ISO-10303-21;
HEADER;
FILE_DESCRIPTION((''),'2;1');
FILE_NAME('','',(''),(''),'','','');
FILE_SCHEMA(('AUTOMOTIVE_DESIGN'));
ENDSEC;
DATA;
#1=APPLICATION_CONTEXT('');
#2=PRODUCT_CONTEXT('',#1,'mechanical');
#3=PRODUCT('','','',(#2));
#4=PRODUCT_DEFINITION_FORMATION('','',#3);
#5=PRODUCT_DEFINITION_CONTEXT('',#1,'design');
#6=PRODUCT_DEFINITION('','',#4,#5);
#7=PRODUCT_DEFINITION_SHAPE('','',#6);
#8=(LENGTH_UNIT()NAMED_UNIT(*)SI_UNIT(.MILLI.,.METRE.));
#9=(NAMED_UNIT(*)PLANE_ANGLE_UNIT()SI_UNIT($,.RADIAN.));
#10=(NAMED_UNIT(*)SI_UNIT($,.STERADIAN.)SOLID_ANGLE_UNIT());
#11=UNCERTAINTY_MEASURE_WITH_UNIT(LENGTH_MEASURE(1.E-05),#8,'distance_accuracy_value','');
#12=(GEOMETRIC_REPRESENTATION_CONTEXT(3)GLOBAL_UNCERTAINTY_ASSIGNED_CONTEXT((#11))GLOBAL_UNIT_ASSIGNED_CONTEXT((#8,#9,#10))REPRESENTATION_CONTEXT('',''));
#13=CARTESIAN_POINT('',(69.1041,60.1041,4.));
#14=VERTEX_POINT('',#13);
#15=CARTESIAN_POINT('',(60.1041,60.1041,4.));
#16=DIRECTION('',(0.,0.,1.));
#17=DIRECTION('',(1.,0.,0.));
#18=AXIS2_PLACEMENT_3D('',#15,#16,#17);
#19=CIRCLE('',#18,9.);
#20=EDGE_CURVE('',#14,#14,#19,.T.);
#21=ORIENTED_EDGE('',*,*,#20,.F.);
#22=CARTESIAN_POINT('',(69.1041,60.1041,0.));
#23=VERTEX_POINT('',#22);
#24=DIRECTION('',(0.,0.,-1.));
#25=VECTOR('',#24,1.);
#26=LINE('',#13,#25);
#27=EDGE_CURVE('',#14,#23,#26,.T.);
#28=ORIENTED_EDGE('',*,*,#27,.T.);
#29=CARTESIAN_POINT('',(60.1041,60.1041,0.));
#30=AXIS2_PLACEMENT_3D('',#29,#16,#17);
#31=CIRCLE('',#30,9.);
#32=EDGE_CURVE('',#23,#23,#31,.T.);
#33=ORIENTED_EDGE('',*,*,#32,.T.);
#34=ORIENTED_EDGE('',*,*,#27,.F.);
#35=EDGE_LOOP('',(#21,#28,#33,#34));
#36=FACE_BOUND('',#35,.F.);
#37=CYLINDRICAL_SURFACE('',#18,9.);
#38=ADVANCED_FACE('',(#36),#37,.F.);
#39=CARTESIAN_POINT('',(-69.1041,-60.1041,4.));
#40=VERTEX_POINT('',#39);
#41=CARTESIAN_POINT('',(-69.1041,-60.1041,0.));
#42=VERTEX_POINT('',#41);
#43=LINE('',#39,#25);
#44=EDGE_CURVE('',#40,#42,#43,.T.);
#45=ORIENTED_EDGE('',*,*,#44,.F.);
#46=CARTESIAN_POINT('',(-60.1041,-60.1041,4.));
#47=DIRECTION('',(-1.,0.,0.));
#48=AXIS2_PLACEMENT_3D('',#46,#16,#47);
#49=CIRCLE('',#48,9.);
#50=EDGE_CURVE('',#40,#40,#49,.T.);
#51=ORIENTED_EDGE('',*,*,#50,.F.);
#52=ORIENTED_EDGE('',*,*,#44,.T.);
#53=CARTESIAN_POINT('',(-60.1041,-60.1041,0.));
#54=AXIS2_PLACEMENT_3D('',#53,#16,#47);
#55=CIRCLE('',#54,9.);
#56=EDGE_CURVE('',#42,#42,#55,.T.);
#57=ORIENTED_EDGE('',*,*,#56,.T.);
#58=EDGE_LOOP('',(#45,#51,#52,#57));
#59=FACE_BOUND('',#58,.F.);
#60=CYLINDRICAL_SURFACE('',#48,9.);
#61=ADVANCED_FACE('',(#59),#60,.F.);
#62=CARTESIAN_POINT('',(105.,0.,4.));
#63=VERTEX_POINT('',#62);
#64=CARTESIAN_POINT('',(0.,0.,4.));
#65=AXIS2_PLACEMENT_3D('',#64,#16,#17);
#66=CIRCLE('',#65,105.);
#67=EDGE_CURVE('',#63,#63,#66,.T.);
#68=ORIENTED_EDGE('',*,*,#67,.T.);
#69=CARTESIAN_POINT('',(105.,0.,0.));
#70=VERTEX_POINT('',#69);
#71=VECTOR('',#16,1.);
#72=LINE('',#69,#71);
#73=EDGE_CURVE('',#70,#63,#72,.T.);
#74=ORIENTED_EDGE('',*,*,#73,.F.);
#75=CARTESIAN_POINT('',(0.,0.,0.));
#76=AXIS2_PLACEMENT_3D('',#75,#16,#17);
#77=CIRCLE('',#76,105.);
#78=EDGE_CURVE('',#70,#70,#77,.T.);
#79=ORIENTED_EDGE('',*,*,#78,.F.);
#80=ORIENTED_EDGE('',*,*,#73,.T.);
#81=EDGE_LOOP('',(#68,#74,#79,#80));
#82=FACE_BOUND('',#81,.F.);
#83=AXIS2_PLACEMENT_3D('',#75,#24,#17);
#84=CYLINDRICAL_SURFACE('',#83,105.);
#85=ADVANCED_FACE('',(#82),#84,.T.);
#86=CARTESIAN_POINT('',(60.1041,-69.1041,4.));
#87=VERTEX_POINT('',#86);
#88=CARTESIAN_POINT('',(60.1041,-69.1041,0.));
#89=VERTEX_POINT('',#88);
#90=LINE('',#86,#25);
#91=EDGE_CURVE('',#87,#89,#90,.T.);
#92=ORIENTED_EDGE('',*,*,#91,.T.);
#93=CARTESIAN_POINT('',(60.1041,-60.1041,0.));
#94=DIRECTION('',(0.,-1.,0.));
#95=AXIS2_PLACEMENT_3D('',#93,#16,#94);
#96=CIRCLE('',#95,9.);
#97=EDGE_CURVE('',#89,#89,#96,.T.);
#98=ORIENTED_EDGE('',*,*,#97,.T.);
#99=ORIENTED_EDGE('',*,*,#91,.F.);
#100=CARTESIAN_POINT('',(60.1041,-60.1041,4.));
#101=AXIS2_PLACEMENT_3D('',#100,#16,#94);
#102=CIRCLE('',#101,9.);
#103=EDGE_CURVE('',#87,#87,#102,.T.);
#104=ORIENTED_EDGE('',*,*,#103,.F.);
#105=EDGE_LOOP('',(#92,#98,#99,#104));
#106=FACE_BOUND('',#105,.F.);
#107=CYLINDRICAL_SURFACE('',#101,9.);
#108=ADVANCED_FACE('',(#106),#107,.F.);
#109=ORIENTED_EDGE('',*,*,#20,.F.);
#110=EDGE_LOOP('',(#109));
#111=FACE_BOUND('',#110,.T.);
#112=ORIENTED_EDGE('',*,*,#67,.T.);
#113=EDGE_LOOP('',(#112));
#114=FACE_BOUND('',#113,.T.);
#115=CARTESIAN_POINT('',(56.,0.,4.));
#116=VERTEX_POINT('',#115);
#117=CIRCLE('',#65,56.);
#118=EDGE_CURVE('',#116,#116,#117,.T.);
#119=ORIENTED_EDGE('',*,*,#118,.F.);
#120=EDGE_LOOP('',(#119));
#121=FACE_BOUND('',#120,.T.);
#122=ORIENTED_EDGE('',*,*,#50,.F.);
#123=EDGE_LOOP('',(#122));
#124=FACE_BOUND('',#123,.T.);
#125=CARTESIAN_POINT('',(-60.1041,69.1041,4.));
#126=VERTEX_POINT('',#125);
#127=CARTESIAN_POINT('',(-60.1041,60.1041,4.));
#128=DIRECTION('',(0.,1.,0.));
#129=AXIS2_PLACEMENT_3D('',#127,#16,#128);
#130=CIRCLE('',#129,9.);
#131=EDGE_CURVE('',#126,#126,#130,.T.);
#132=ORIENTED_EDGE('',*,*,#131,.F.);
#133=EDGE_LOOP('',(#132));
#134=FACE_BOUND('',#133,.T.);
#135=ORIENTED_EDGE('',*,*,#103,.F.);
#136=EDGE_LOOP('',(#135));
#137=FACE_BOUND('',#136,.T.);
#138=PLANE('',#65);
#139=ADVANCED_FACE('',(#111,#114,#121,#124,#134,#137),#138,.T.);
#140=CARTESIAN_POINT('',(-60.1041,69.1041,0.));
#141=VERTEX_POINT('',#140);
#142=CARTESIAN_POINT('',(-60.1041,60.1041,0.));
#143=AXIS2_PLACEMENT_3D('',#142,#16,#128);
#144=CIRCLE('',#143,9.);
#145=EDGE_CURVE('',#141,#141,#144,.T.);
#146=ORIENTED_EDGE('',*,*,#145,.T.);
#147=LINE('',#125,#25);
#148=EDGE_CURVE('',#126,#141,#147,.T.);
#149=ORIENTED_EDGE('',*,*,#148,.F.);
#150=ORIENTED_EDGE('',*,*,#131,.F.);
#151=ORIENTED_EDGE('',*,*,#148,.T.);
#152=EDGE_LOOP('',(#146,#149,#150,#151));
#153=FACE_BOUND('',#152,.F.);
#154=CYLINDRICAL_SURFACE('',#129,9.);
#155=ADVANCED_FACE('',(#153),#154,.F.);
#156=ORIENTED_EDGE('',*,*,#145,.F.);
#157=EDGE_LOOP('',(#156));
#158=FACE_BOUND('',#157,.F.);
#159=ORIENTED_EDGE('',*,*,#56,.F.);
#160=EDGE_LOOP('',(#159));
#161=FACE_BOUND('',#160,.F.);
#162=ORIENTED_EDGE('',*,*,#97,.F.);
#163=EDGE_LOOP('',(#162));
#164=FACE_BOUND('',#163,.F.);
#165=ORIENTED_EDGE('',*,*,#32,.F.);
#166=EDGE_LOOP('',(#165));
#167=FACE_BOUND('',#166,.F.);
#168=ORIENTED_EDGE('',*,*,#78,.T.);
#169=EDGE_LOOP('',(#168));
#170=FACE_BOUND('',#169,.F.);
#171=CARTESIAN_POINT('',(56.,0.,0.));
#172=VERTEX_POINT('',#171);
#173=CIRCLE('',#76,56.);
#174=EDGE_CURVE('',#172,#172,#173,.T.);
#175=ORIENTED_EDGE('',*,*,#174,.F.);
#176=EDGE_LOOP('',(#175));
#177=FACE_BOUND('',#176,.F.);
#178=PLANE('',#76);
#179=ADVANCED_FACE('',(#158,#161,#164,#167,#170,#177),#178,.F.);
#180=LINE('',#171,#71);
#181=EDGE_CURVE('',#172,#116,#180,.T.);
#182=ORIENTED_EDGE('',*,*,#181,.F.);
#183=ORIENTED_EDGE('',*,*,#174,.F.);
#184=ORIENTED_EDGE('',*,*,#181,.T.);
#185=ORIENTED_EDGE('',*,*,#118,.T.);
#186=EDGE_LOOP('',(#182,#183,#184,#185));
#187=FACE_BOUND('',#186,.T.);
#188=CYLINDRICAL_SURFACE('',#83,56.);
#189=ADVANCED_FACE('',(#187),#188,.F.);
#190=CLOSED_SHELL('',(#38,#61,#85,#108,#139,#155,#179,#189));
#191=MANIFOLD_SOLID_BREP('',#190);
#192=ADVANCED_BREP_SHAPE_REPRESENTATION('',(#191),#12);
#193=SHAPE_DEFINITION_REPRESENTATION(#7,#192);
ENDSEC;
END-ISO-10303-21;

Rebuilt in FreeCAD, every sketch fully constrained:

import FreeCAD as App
import Part
import Sketcher

V = App.Vector
Q = App.Units.Quantity

doc = App.newDocument("Part")
body = doc.addObject("PartDesign::Body", "Body")

# Sketch on XY plane
sketch1 = body.newObject("Sketcher::SketchObject", "Sketch")
sketch1.AttachmentSupport = (doc.getObject("XY_Plane"), [""])
sketch1.MapMode = "FlatFace"
sketch1.addGeometry(Part.Circle(V(0, 0, 0), V(0, 0, 1), 105), False)
sketch1.addGeometry(Part.Circle(V(0, 0, 0), V(0, 0, 1), 56), False)
sketch1.addConstraint(Sketcher.Constraint("Coincident", 0, 3, -1, 1))
sketch1.addConstraint(Sketcher.Constraint("Coincident", 1, 3, -1, 1))
sketch1.addConstraint(Sketcher.Constraint("Diameter", 0, Q("210 mm")))
sketch1.addConstraint(Sketcher.Constraint("Diameter", 1, Q("112 mm")))
pad1 = body.newObject("PartDesign::Pad", "Pad")
pad1.Profile = sketch1
pad1.Length = 4

# Sketch on XY plane
sketch2 = body.newObject("Sketcher::SketchObject", "Sketch001")
sketch2.AttachmentSupport = (doc.getObject("XY_Plane"), [""])
sketch2.MapMode = "FlatFace"
sketch2.AttachmentOffset = App.Placement(V(0, 0, 4), App.Rotation())
sketch2.addGeometry(Part.Circle(V(60, 60, 0), V(0, 0, 1), 9), False)
sketch2.addConstraint(Sketcher.Constraint("Diameter", 0, Q("18 mm")))
sketch2.addConstraint(Sketcher.Constraint("DistanceX", -1, 1, 0, 3, Q("60.104 mm")))
sketch2.addConstraint(Sketcher.Constraint("DistanceY", -1, 1, 0, 3, Q("60.104 mm")))
pocket1 = body.newObject("PartDesign::Pocket", "Pocket")
pocket1.Profile = sketch2
pocket1.Length = 4
doc.recompute()

polarpattern = body.newObject("PartDesign::PolarPattern", "PolarPattern")
polarpattern.Originals = [pocket1]
polarpattern.Axis = (doc.getObject("Z_Axis"), [""])
polarpattern.Angle = 360
polarpattern.Occurrences = 4
body.Tip = polarpattern

doc.recompute()
